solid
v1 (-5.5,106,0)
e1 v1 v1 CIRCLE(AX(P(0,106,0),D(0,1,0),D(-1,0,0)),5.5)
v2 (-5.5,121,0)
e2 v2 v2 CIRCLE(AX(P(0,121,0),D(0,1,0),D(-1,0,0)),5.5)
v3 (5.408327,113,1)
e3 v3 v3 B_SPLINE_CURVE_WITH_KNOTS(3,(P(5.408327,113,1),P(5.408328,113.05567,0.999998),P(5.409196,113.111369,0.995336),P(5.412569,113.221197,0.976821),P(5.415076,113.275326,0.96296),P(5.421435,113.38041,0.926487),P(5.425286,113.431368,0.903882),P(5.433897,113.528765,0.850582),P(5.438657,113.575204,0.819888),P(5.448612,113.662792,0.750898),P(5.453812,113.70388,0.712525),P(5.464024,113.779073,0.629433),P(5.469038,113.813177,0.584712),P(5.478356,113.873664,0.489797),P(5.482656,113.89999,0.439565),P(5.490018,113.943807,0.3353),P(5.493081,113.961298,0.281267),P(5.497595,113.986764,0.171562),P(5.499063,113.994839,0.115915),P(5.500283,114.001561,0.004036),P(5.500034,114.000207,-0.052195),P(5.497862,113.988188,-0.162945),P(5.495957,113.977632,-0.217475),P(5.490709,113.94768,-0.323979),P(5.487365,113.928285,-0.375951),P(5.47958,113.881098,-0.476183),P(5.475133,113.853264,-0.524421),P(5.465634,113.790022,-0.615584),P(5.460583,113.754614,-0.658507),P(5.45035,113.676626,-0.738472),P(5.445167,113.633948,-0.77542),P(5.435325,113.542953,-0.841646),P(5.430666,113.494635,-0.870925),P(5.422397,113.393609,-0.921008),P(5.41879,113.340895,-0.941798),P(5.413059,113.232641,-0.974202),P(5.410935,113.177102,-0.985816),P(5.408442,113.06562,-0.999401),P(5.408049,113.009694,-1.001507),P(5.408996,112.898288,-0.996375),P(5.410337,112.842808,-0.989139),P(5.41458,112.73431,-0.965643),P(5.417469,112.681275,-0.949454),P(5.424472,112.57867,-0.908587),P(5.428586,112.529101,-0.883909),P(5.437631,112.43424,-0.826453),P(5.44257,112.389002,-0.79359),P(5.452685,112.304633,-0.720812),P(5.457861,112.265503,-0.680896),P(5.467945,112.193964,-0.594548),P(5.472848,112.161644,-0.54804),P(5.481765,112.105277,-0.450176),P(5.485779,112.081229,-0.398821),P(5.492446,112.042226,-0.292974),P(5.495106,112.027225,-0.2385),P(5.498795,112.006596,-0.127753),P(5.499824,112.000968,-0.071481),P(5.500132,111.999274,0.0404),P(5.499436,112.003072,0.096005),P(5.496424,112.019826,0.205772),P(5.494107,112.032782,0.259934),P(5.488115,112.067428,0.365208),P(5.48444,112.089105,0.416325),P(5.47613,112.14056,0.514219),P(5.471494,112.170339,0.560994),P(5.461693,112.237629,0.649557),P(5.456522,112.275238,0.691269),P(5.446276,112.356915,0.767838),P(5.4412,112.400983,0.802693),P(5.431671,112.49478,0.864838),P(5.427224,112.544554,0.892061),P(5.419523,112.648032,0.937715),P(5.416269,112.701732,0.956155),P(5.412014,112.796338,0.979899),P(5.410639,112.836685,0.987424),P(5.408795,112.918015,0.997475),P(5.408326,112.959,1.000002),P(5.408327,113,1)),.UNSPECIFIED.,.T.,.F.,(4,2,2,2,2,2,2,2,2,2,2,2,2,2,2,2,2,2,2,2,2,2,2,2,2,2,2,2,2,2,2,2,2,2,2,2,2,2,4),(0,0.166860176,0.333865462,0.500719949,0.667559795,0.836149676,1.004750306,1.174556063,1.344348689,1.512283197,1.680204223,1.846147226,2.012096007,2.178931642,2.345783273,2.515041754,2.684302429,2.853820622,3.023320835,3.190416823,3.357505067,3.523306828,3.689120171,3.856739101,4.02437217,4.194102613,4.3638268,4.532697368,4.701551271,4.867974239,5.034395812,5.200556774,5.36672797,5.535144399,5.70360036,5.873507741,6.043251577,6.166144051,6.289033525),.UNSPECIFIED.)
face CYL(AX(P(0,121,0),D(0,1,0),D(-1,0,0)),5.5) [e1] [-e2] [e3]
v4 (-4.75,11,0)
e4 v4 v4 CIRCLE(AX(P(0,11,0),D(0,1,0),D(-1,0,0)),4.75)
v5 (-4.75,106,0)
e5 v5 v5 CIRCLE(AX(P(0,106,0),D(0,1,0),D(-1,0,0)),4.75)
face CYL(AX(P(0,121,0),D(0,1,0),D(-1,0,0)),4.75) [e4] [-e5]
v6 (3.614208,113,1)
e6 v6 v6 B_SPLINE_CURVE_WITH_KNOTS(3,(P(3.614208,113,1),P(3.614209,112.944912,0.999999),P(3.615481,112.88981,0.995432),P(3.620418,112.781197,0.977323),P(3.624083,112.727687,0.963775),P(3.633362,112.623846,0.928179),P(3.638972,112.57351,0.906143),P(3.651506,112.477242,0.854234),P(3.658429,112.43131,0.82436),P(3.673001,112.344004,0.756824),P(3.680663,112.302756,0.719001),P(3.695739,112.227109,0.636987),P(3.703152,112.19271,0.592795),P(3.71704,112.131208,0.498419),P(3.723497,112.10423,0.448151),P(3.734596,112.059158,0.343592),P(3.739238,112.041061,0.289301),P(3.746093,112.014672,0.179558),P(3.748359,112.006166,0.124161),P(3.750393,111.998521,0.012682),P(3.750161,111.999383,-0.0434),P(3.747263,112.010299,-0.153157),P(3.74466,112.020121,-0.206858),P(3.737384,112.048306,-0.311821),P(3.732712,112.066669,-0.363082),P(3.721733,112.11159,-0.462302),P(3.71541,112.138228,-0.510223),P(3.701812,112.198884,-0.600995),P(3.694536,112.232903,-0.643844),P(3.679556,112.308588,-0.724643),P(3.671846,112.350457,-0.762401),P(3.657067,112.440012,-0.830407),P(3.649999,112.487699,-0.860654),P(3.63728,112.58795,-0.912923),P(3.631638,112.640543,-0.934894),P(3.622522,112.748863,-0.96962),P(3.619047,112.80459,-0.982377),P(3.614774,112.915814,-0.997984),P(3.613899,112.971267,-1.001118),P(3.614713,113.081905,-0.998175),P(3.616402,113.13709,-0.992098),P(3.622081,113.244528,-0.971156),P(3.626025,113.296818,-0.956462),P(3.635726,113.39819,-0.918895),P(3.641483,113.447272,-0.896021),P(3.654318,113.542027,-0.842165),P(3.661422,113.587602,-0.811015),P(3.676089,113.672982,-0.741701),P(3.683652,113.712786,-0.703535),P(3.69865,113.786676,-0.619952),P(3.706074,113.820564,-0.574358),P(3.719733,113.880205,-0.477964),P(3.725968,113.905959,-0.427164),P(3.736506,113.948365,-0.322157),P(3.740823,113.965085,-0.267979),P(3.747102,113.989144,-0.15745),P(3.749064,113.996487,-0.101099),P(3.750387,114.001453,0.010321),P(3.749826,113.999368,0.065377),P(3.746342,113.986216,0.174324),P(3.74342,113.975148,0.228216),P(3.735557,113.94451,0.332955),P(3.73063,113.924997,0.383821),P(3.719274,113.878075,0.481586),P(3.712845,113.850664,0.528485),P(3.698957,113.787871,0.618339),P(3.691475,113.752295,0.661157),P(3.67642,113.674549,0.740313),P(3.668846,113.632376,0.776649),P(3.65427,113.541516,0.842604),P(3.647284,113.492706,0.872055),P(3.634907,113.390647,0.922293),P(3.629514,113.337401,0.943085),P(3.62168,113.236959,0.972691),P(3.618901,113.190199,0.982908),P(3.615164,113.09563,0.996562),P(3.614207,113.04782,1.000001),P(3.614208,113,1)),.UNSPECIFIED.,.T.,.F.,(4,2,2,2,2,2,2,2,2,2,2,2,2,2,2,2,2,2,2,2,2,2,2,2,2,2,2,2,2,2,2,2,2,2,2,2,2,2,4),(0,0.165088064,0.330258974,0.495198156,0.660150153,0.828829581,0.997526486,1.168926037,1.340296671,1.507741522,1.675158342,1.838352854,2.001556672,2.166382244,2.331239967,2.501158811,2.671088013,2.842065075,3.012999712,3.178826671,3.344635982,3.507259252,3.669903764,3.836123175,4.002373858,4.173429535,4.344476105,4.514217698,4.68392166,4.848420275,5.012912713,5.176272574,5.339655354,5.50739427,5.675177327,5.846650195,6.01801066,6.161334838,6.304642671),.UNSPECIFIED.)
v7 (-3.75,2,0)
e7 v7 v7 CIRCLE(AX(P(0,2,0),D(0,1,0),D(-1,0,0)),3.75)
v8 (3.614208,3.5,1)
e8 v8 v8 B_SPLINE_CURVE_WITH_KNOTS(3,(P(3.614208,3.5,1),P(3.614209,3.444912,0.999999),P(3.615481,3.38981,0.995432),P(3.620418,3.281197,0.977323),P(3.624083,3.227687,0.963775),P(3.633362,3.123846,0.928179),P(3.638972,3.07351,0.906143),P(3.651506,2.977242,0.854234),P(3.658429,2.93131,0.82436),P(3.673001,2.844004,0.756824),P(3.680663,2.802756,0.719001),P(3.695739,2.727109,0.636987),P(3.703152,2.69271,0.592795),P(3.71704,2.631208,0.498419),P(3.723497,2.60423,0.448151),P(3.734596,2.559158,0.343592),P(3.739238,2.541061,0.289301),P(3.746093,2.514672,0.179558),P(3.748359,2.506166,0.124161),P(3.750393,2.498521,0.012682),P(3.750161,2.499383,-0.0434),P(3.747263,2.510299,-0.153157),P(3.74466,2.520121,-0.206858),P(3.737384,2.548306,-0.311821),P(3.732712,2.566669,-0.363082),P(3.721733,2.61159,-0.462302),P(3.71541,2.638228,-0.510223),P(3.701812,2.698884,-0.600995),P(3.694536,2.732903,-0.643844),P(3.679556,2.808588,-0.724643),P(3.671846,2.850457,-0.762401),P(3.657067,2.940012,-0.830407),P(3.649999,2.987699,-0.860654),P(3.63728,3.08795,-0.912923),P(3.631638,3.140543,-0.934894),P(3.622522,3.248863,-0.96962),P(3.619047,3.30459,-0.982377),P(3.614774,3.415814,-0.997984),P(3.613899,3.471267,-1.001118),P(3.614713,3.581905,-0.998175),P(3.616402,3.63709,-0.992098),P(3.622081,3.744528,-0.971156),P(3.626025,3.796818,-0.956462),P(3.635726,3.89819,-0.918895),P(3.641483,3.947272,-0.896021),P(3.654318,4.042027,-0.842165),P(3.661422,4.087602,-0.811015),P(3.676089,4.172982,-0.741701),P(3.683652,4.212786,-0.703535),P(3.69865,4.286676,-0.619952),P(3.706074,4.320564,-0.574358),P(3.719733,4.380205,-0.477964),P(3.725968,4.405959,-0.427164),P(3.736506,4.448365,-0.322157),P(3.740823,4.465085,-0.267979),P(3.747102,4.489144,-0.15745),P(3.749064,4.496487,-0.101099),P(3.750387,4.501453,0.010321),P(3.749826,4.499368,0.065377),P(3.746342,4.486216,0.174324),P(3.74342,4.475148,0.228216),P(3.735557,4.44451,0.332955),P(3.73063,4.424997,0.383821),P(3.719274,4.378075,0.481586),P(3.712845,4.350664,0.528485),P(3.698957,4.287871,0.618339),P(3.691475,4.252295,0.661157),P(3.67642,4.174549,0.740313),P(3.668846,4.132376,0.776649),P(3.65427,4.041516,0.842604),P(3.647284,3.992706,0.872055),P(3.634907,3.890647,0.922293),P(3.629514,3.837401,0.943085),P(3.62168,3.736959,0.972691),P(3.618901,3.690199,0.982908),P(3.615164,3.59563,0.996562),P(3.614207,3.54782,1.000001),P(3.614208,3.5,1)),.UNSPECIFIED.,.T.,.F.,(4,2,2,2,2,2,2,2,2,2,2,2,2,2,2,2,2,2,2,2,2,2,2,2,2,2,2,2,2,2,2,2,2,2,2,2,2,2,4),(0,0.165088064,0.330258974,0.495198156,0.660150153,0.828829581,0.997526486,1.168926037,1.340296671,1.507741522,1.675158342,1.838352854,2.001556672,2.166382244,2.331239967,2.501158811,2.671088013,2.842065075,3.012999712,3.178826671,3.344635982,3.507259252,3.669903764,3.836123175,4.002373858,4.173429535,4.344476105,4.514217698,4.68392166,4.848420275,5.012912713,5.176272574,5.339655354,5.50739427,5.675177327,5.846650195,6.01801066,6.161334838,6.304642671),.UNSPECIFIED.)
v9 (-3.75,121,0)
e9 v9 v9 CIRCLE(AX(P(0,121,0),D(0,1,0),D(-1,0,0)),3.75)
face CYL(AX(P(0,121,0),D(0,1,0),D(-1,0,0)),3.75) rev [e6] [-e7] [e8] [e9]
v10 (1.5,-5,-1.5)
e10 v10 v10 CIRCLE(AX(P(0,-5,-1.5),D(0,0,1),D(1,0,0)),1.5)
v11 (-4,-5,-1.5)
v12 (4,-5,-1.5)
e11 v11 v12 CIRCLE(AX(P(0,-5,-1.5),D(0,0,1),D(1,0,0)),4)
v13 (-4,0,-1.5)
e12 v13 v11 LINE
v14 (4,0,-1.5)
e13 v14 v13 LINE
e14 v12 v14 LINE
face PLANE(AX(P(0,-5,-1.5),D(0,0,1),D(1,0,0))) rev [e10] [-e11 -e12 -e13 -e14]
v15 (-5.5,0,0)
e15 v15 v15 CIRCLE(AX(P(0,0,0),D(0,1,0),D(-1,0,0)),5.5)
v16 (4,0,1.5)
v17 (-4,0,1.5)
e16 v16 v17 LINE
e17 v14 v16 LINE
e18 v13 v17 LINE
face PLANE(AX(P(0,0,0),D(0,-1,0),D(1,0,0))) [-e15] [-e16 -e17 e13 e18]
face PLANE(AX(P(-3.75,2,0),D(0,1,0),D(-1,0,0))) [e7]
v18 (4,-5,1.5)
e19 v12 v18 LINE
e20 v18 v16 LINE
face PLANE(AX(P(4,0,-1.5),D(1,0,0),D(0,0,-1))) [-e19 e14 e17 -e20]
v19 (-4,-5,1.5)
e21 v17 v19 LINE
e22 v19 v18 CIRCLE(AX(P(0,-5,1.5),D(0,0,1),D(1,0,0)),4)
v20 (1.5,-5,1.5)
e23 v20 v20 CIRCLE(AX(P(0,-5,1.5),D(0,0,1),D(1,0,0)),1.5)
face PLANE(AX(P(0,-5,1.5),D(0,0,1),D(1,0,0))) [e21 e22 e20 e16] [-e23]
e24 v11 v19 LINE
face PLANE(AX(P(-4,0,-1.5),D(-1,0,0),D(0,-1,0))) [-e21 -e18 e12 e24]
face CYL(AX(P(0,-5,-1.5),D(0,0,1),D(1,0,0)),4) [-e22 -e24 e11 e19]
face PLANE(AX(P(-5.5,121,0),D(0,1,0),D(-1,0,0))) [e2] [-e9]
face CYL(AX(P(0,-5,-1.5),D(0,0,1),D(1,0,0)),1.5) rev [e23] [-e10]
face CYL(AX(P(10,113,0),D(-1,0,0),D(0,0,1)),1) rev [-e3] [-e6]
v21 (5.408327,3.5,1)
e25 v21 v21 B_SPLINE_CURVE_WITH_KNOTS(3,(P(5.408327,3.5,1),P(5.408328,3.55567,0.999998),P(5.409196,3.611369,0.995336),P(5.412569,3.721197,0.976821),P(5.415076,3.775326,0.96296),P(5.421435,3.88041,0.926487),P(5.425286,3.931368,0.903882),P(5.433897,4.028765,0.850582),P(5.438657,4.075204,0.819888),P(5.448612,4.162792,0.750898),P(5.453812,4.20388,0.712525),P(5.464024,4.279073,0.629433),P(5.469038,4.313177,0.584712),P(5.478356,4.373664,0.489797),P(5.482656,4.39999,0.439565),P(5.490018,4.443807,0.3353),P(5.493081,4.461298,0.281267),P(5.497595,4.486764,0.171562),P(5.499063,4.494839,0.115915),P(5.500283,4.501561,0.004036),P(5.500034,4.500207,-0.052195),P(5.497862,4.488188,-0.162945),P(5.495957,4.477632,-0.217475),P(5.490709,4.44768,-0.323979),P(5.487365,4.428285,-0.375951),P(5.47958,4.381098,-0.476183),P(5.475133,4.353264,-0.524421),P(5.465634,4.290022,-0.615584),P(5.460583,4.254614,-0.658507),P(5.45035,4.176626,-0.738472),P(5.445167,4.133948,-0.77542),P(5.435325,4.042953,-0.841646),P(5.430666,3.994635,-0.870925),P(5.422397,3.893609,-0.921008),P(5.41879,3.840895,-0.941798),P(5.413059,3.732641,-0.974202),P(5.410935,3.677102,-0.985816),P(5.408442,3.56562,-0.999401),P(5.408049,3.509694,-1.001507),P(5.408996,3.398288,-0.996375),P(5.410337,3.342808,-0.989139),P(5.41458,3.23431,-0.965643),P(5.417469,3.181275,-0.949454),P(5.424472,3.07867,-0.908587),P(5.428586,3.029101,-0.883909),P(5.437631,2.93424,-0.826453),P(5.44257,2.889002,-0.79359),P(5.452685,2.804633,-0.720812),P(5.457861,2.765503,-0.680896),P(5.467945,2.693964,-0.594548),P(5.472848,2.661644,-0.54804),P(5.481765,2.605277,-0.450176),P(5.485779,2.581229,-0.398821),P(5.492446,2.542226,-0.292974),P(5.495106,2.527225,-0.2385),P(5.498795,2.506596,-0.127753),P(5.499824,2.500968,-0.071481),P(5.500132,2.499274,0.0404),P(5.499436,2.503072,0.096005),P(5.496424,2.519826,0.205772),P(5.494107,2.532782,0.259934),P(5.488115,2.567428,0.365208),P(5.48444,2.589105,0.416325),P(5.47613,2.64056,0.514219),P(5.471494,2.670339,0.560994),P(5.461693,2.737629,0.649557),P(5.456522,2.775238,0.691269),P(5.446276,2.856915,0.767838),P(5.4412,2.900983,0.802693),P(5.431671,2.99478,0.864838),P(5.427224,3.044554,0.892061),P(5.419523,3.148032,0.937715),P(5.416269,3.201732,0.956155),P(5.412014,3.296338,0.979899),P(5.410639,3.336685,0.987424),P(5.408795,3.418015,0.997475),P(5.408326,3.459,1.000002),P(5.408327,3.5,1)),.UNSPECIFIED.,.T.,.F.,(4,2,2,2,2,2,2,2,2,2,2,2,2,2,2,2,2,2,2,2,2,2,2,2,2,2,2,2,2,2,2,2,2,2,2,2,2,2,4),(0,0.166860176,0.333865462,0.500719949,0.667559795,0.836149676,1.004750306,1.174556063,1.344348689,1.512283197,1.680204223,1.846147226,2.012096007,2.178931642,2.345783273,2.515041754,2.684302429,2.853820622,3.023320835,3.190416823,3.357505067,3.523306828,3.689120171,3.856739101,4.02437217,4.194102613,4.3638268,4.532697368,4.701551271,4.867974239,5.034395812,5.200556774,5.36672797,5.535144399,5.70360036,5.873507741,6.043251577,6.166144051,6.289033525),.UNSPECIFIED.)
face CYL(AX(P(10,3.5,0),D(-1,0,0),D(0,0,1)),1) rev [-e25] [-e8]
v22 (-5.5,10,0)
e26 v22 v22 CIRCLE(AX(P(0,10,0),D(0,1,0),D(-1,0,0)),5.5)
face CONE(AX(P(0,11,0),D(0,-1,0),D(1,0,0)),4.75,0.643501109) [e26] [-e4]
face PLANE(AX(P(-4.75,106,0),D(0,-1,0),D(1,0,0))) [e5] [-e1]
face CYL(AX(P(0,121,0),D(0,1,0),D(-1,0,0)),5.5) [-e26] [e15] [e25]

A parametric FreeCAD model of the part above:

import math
import FreeCAD as App
import Part
import Sketcher
Q = App.Units.Quantity


def add_polygon(sketch, points):
    """Adds a closed chain of lines whose ends are joined by coincident constraints."""
    first, n = sketch.GeometryCount, len(points)
    for a, b in zip(points, points[1:] + points[:1]):
        sketch.addGeometry(Part.LineSegment(App.Vector(*a, 0), App.Vector(*b, 0)), False)
    for i in range(n):
        sketch.addConstraint(Sketcher.Constraint("Coincident", first + i, 2, first + (i + 1) % n, 1))

doc = App.newDocument("Part")
body = doc.addObject("PartDesign::Body", "Body")

# Sketch on XY plane
sketch1 = body.newObject("Sketcher::SketchObject", "Sketch")
sketch1.AttachmentSupport = (doc.getObject("XY_Plane"), [""])
sketch1.MapMode = "FlatFace"
add_polygon(sketch1, [(-5.5, 0), (0, 0), (0, 2), (-3.75, 2), (-3.75, 121), (-5.5, 121), (-5.5, 106), (-4.75, 106), (-4.75, 11), (-5.5, 10)])  # lines 0-9
sketch1.addConstraint([
    Sketcher.Constraint("Horizontal", 0),
    Sketcher.Constraint("Vertical", 1),
    Sketcher.Constraint("Horizontal", 2),
    Sketcher.Constraint("Vertical", 3),
    Sketcher.Constraint("Horizontal", 4),
    Sketcher.Constraint("Vertical", 5),
    Sketcher.Constraint("Horizontal", 6),
    Sketcher.Constraint("Vertical", 7),
    Sketcher.Constraint("Vertical", 9),
    Sketcher.Constraint("Coincident", 0, 2, -1, 1),
    Sketcher.Constraint("Vertical", 5, 2, 8, 2),
    Sketcher.Constraint("DistanceY", 1, 1, 1, 2, Q("2 mm")),
    Sketcher.Constraint("DistanceY", 3, 1, 3, 2, Q("119 mm")),
    Sketcher.Constraint("DistanceY", 5, 2, 5, 1, Q("15 mm")),
    Sketcher.Constraint("DistanceY", 7, 2, 7, 1, Q("95 mm")),
    Sketcher.Constraint("DistanceY", 9, 2, 9, 1, Q("10 mm")),
    Sketcher.Constraint("DistanceX", 0, 1, 0, 2, Q("5.5 mm")),
    Sketcher.Constraint("DistanceX", 6, 2, 3, 2, Q("1 mm")),
    Sketcher.Constraint("DistanceX", 2, 2, 2, 1, Q("3.75 mm")),
])
revolution = body.newObject("PartDesign::Revolution", "Revolution")
revolution.Profile = sketch1
revolution.ReferenceAxis = (sketch1, ["V_Axis"])
revolution.Angle = 360

# Sketch on XY plane
sketch2 = body.newObject("Sketcher::SketchObject", "Sketch001")
sketch2.AttachmentSupport = (doc.getObject("XY_Plane"), [""])
sketch2.MapMode = "FlatFace"
sketch2.addGeometry([
    Part.LineSegment(App.Vector(4, 0, 0), App.Vector(-4, 0, 0)),  # 0
    Part.LineSegment(App.Vector(-4, 0, 0), App.Vector(-4, -5, 0)),  # 1
    Part.ArcOfCircle(Part.Circle(App.Vector(0, -5, 0), App.Vector(0, 0, 1), 4), math.radians(180), math.radians(360)),  # 2
    Part.LineSegment(App.Vector(4, -5, 0), App.Vector(4, 0, 0)),  # 3
    Part.Circle(App.Vector(0, -5, 0), App.Vector(0, 0, 1), 1.5),  # 4
], False)
sketch2.addConstraint([
    Sketcher.Constraint("Coincident", 0, 2, 1, 1),
    Sketcher.Constraint("Tangent", 1, 2, 2, 1),
    Sketcher.Constraint("Tangent", 2, 2, 3, 1),
    Sketcher.Constraint("Coincident", 3, 2, 0, 1),
    Sketcher.Constraint("Horizontal", 0),
    Sketcher.Constraint("Vertical", 1),
    Sketcher.Constraint("Vertical", 3),
    Sketcher.Constraint("Coincident", 4, 3, 2, 3),
    Sketcher.Constraint("Symmetric", 0, 2, 3, 2, -1, 1),
    Sketcher.Constraint("Diameter", 4, Q("3 mm")),
    Sketcher.Constraint("Radius", 2, Q("4 mm")),
    Sketcher.Constraint("DistanceY", 1, 2, 1, 1, Q("5 mm")),
])
pad1 = body.newObject("PartDesign::Pad", "Pad")
pad1.Profile = sketch2
pad1.Type = "TwoLengths"
pad1.Length = 1.5
pad1.Length2 = 1.5

# Sketch on YZ plane
sketch3 = body.newObject("Sketcher::SketchObject", "Sketch002")
sketch3.AttachmentSupport = (doc.getObject("YZ_Plane"), [""])
sketch3.MapMode = "FlatFace"
sketch3.addGeometry([
    Part.Circle(App.Vector(3.5, 0, 0), App.Vector(0, 0, 1), 1),
    Part.Circle(App.Vector(113, 0, 0), App.Vector(0, 0, 1), 1),
], False)
sketch3.addConstraint([
    Sketcher.Constraint("Equal", 0, 1),
    Sketcher.Constraint("PointOnObject", 0, 3, -1),
    Sketcher.Constraint("PointOnObject", 1, 3, -1),
    Sketcher.Constraint("Diameter", 0, Q("2 mm")),
    Sketcher.Constraint("DistanceX", -1, 1, 1, 3, Q("113 mm")),
    Sketcher.Constraint("DistanceX", -1, 1, 0, 3, Q("3.5 mm")),
])
pocket1 = body.newObject("PartDesign::Pocket", "Pocket")
pocket1.Profile = sketch3
pocket1.Length = 10
pocket1.Reversed = True

doc.recompute()
